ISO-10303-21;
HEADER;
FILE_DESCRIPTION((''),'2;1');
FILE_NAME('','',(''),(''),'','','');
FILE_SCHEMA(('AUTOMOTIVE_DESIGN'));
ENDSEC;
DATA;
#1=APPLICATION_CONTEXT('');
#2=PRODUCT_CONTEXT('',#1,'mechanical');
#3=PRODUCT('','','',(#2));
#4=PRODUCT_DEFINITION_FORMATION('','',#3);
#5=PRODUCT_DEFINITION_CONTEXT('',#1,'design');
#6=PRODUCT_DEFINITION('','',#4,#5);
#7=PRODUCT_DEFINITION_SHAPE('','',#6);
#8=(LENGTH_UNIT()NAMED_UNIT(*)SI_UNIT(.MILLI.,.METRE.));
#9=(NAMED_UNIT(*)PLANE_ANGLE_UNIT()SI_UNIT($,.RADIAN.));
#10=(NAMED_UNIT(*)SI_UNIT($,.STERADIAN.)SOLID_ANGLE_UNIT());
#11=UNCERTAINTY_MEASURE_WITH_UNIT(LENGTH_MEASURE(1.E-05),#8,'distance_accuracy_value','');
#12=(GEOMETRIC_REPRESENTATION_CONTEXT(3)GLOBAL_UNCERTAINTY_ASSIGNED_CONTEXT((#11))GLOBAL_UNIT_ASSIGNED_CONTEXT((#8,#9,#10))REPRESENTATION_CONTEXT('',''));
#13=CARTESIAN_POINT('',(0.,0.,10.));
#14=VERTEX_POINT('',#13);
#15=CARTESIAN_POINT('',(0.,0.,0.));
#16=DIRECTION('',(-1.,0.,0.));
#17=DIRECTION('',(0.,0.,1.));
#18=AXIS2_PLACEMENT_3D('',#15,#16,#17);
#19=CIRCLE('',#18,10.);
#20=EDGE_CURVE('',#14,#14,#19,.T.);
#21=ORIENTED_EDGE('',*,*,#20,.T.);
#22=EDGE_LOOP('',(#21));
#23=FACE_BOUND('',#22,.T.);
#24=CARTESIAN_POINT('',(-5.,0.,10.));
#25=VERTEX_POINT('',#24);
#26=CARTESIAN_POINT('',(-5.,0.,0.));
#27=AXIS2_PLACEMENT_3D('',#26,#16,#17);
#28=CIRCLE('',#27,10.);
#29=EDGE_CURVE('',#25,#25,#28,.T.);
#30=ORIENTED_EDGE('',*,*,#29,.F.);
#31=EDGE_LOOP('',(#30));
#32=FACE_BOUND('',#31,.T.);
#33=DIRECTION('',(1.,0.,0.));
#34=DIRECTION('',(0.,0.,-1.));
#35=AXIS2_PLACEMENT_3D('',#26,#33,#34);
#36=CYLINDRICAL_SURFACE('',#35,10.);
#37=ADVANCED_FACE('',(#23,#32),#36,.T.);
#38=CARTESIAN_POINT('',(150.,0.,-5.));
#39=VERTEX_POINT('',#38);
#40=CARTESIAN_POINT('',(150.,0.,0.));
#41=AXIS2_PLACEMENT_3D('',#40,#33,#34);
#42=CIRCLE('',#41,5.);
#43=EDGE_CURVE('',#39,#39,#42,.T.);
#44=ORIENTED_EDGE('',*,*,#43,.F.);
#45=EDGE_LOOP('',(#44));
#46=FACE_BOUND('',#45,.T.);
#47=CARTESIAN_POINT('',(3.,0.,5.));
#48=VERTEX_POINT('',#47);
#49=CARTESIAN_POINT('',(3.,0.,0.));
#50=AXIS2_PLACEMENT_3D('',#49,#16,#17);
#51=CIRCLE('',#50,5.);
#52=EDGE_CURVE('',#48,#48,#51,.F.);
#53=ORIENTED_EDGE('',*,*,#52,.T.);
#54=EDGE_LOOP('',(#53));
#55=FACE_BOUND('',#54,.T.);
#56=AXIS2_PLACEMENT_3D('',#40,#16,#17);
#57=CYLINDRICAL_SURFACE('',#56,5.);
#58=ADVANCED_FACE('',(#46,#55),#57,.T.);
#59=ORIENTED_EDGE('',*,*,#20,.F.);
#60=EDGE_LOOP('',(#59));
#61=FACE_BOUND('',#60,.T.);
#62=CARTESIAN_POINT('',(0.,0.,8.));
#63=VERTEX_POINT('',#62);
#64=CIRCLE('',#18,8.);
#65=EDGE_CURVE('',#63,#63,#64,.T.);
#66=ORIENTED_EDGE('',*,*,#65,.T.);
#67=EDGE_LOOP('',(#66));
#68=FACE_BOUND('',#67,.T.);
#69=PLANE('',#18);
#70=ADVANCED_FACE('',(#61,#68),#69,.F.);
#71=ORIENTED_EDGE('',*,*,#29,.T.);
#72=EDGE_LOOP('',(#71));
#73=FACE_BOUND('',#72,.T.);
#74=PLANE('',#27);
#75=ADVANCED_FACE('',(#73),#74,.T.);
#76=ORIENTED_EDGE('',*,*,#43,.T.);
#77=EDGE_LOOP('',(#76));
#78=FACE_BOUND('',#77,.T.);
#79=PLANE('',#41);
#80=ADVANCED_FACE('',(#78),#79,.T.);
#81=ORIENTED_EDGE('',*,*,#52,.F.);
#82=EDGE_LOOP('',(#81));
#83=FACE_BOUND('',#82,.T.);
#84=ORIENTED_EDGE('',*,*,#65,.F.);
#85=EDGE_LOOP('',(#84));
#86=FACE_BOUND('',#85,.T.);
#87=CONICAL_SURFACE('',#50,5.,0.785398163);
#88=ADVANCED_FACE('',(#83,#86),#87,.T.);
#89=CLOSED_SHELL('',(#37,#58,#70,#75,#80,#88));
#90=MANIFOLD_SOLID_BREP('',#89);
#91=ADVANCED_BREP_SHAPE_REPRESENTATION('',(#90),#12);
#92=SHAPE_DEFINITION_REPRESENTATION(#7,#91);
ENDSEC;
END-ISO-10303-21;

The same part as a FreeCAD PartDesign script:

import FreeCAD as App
import Part
import Sketcher
from FreeCAD import Vector


def edges_at(feature, points):
    """Names of the edges that pass closest to the given points."""
    edges = feature.Shape.Edges
    near = lambda p: min(range(len(edges)), key=lambda i: edges[i].distToShape(Part.Vertex(*p))[0])
    return sorted({f"Edge{near(p) + 1}" for p in points})

doc = App.newDocument("Part")
body = doc.addObject("PartDesign::Body", "Body")

# Sketch on YZ plane
sketch1 = body.newObject("Sketcher::SketchObject", "Sketch")
sketch1.AttachmentSupport = (doc.getObject("YZ_Plane"), [""])
sketch1.MapMode = "FlatFace"
sketch1.addGeometry(Part.Circle(Vector(0, 0, 0), Vector(0, 0, 1), 5), False)
sketch1.addConstraint([
    Sketcher.Constraint("Coincident", 0, 3, -1, 1),
    Sketcher.Constraint("Diameter", 0, 10.0),
])
pad1 = body.newObject("PartDesign::Pad", "Pad")
pad1.Profile = sketch1
pad1.Length = 150

# Sketch on YZ plane
sketch2 = body.newObject("Sketcher::SketchObject", "Sketch001")
sketch2.AttachmentSupport = (doc.getObject("YZ_Plane"), [""])
sketch2.MapMode = "FlatFace"
sketch2.addGeometry(Part.Circle(Vector(0, 0, 0), Vector(0, 0, 1), 10), False)
sketch2.addConstraint([
    Sketcher.Constraint("Coincident", 0, 3, -1, 1),
    Sketcher.Constraint("Diameter", 0, 20.0),
])
pad2 = body.newObject("PartDesign::Pad", "Pad001")
pad2.Profile = sketch2
pad2.Length = 5
pad2.Reversed = True
doc.recompute()

chamfer = body.newObject("PartDesign::Chamfer", "Chamfer")
chamfer.Base = (pad2, edges_at(pad2, [(0, 0, 5)]))
chamfer.Size = 3

doc.recompute()
